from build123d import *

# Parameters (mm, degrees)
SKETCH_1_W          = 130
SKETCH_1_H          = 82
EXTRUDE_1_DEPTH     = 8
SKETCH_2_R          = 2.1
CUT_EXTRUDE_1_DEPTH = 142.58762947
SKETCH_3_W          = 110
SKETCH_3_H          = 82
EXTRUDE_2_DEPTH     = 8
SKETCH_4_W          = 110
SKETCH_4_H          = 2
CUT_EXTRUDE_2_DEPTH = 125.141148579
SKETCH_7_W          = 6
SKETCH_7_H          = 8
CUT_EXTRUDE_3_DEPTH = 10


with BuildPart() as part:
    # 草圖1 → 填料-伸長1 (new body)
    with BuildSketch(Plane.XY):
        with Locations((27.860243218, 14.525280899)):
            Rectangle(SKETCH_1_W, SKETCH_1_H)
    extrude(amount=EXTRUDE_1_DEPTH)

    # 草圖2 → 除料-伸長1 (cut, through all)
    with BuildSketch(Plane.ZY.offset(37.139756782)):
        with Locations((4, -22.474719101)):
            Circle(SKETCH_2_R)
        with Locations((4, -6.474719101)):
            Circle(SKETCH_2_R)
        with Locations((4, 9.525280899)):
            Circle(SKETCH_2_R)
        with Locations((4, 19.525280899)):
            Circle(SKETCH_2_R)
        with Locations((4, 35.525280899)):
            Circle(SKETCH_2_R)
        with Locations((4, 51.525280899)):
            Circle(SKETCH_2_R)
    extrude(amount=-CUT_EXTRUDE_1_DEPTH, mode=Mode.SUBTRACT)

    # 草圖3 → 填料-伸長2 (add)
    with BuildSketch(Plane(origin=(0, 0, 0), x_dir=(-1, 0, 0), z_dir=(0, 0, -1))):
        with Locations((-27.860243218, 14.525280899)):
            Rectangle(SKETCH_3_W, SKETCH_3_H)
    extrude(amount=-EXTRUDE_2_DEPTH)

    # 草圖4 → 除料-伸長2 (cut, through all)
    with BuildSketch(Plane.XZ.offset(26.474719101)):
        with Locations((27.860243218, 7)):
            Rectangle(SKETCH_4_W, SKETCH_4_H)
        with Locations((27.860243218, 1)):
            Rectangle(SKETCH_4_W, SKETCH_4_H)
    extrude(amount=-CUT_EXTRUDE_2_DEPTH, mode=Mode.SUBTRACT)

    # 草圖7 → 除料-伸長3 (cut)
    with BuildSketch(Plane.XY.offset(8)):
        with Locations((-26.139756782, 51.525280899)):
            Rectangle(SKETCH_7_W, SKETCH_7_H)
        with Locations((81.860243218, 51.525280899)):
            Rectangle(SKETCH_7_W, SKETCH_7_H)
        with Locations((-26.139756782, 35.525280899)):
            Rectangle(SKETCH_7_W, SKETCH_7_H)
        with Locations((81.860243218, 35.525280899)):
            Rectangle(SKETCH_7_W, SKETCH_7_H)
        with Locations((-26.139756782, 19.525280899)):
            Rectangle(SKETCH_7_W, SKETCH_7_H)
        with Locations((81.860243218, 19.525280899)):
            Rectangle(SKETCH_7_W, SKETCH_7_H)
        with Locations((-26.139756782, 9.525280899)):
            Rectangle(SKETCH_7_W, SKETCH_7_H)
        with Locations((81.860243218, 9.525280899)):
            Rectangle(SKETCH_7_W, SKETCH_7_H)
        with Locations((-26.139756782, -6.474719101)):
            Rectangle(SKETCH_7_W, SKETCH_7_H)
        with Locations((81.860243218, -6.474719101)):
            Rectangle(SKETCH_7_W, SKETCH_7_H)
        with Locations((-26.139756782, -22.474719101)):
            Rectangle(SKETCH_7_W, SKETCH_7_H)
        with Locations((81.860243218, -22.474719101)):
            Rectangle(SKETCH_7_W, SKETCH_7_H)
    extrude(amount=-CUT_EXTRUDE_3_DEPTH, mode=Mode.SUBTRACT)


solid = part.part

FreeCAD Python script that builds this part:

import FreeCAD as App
import Part
import Sketcher
from FreeCAD import Vector

doc = App.newDocument("Part")
body = doc.addObject("PartDesign::Body", "Body")

sketch1 = body.newObject("Sketcher::SketchObject", "Sketch")
sketch1.AttachmentSupport = (doc.getObject("XY_Plane"), [""])
sketch1.MapMode = "FlatFace"
sketch1.addGeometry([
    Part.LineSegment(Vector(-37.139757, 55.525281, 0), Vector(-37.139757, -26.474719, 0)),
    Part.LineSegment(Vector(-37.139757, -26.474719, 0), Vector(92.860243, -26.474719, 0)),
    Part.LineSegment(Vector(92.860243, -26.474719, 0), Vector(92.860243, 55.525281, 0)),
    Part.LineSegment(Vector(92.860243, 55.525281, 0), Vector(-37.139757, 55.525281, 0)),
], False)
sketch1.addConstraint([
    Sketcher.Constraint("Coincident", 0, 2, 1, 1),
    Sketcher.Constraint("Coincident", 1, 2, 2, 1),
    Sketcher.Constraint("Coincident", 2, 2, 3, 1),
    Sketcher.Constraint("Coincident", 3, 2, 0, 1),
    Sketcher.Constraint("Vertical", 0),
    Sketcher.Constraint("Horizontal", 1),
    Sketcher.Constraint("Vertical", 2),
    Sketcher.Constraint("Horizontal", 3),
    Sketcher.Constraint("DistanceX", 1, 1, 1, 2, 130.0),
    Sketcher.Constraint("DistanceY", 0, 2, 0, 1, 82.0),
    Sketcher.Constraint("DistanceY", 0, 2, -1, 1, 26.474719),
    Sketcher.Constraint("DistanceX", 0, 2, -1, 1, 37.139757),
])
pad1 = body.newObject("PartDesign::Pad", "Pad")
pad1.Profile = sketch1
pad1.Length = 8

sketch2 = body.newObject("Sketcher::SketchObject", "Sketch001")
sketch2.AttachmentSupport = (doc.getObject("YZ_Plane"), [""])
sketch2.MapMode = "FlatFace"
sketch2.AttachmentOffset = App.Placement(Vector(0, 0, -37.139757), App.Rotation())
sketch2.addGeometry([
    Part.Circle(Vector(-22.474719, 4, 0), Vector(0, 0, 1), 2.1),
    Part.Circle(Vector(-6.474719, 4, 0), Vector(0, 0, 1), 2.1),
    Part.Circle(Vector(9.525281, 4, 0), Vector(0, 0, 1), 2.1),
    Part.Circle(Vector(19.525281, 4, 0), Vector(0, 0, 1), 2.1),
    Part.Circle(Vector(35.525281, 4, 0), Vector(0, 0, 1), 2.1),
    Part.Circle(Vector(51.525281, 4, 0), Vector(0, 0, 1), 2.1),
], False)
sketch2.addConstraint([
    Sketcher.Constraint("Equal", 0, 1),
    Sketcher.Constraint("Equal", 1, 2),
    Sketcher.Constraint("Equal", 2, 3),
    Sketcher.Constraint("Equal", 3, 4),
    Sketcher.Constraint("Equal", 4, 5),
    Sketcher.Constraint("Horizontal", 0, 3, 1, 3),
    Sketcher.Constraint("Horizontal", 1, 3, 2, 3),
    Sketcher.Constraint("Horizontal", 2, 3, 3, 3),
    Sketcher.Constraint("Horizontal", 3, 3, 4, 3),
    Sketcher.Constraint("Horizontal", 4, 3, 5, 3),
    Sketcher.Constraint("Diameter", 0, 4.2),
    Sketcher.Constraint("DistanceY", -1, 1, 0, 3, 4.0),
    Sketcher.Constraint("DistanceX", 0, 3, 1, 3, 16.0),
    Sketcher.Constraint("DistanceX", 1, 3, 2, 3, 16.0),
    Sketcher.Constraint("DistanceX", 2, 3, 3, 3, 10.0),
    Sketcher.Constraint("DistanceX", 3, 3, 4, 3, 16.0),
    Sketcher.Constraint("DistanceX", 4, 3, 5, 3, 16.0),
    Sketcher.Constraint("DistanceX", 0, 3, -1, 1, 22.474719),
])
pocket1 = body.newObject("PartDesign::Pocket", "Pocket")
pocket1.Profile = sketch2
pocket1.Type = "ThroughAll"
pocket1.Reversed = True

sketch3 = body.newObject("Sketcher::SketchObject", "Sketch002")
sketch3.AttachmentSupport = (doc.getObject("XY_Plane"), [""])
sketch3.MapMode = "FlatFace"
sketch3.addGeometry([
    Part.LineSegment(Vector(82.860243, 55.525281, 0), Vector(82.860243, -26.474719, 0)),
    Part.LineSegment(Vector(82.860243, -26.474719, 0), Vector(-27.139757, -26.474719, 0)),
    Part.LineSegment(Vector(-27.139757, -26.474719, 0), Vector(-27.139757, 55.525281, 0)),
    Part.LineSegment(Vector(-27.139757, 55.525281, 0), Vector(82.860243, 55.525281, 0)),
], False)
sketch3.addConstraint([
    Sketcher.Constraint("Coincident", 0, 2, 1, 1),
    Sketcher.Constraint("Coincident", 1, 2, 2, 1),
    Sketcher.Constraint("Coincident", 2, 2, 3, 1),
    Sketcher.Constraint("Coincident", 3, 2, 0, 1),
    Sketcher.Constraint("Vertical", 0),
    Sketcher.Constraint("Horizontal", 1),
    Sketcher.Constraint("Vertical", 2),
    Sketcher.Constraint("Horizontal", 3),
    Sketcher.Constraint("DistanceX", 1, 2, 1, 1, 110.0),
    Sketcher.Constraint("DistanceY", 0, 2, 0, 1, 82.0),
    Sketcher.Constraint("DistanceY", 0, 2, -1, 1, 26.474719),
    Sketcher.Constraint("DistanceX", -1, 1, 0, 2, 82.860243),
])
pad2 = body.newObject("PartDesign::Pad", "Pad001")
pad2.Profile = sketch3
pad2.Length = 8

sketch4 = body.newObject("Sketcher::SketchObject", "Sketch003")
sketch4.AttachmentSupport = (doc.getObject("XZ_Plane"), [""])
sketch4.MapMode = "FlatFace"
sketch4.AttachmentOffset = App.Placement(Vector(0, 0, 26.474719), App.Rotation())
sketch4.addGeometry([
    Part.LineSegment(Vector(-27.139757, 8, 0), Vector(-27.139757, 6, 0)),
    Part.LineSegment(Vector(-27.139757, 6, 0), Vector(82.860243, 6, 0)),
    Part.LineSegment(Vector(82.860243, 6, 0), Vector(82.860243, 8, 0)),
    Part.LineSegment(Vector(82.860243, 8, 0), Vector(-27.139757, 8, 0)),
    Part.LineSegment(Vector(-27.139757, 2, 0), Vector(-27.139757, 0, 0)),
    Part.LineSegment(Vector(-27.139757, 0, 0), Vector(82.860243, 0, 0)),
    Part.LineSegment(Vector(82.860243, 0, 0), Vector(82.860243, 2, 0)),
    Part.LineSegment(Vector(82.860243, 2, 0), Vector(-27.139757, 2, 0)),
], False)
sketch4.addConstraint([
    Sketcher.Constraint("Coincident", 0, 2, 1, 1),
    Sketcher.Constraint("Coincident", 1, 2, 2, 1),
    Sketcher.Constraint("Coincident", 2, 2, 3, 1),
    Sketcher.Constraint("Coincident", 3, 2, 0, 1),
    Sketcher.Constraint("Coincident", 4, 2, 5, 1),
    Sketcher.Constraint("Coincident", 5, 2, 6, 1),
    Sketcher.Constraint("Coincident", 6, 2, 7, 1),
    Sketcher.Constraint("Coincident", 7, 2, 4, 1),
    Sketcher.Constraint("Vertical", 0),
    Sketcher.Constraint("Horizontal", 1),
    Sketcher.Constraint("Vertical", 2),
    Sketcher.Constraint("Horizontal", 3),
    Sketcher.Constraint("Vertical", 4),
    Sketcher.Constraint("Horizontal", 5),
    Sketcher.Constraint("Vertical", 6),
    Sketcher.Constraint("Horizontal", 7),
    Sketcher.Constraint("PointOnObject", 4, 2, -1),
    Sketcher.Constraint("Vertical", 3, 2, 4, 2),
    Sketcher.Constraint("Vertical", 2, 2, 5, 2),
    Sketcher.Constraint("Equal", 2, 4),
    Sketcher.Constraint("DistanceX", 1, 1, 1, 2, 110.0),
    Sketcher.Constraint("DistanceY", 0, 2, 0, 1, 2.0),
    Sketcher.Constraint("DistanceY", -1, 1, 0, 2, 6.0),
    Sketcher.Constraint("DistanceX", 0, 2, -1, 1, 27.139757),
])
pocket2 = body.newObject("PartDesign::Pocket", "Pocket001")
pocket2.Profile = sketch4
pocket2.Type = "ThroughAll"

sketch5 = body.newObject("Sketcher::SketchObject", "Sketch004")
sketch5.AttachmentSupport = (doc.getObject("XY_Plane"), [""])
sketch5.MapMode = "FlatFace"
sketch5.AttachmentOffset = App.Placement(Vector(0, 0, 8), App.Rotation())
sketch5.addGeometry([
    Part.LineSegment(Vector(-29.139757, 55.525281, 0), Vector(-29.139757, 47.525281, 0)),
    Part.LineSegment(Vector(-29.139757, 47.525281, 0), Vector(-23.139757, 47.525281, 0)),
    Part.LineSegment(Vector(-23.139757, 47.525281, 0), Vector(-23.139757, 55.525281, 0)),
    Part.LineSegment(Vector(-23.139757, 55.525281, 0), Vector(-29.139757, 55.525281, 0)),
    Part.LineSegment(Vector(78.860243, 55.525281, 0), Vector(78.860243, 47.525281, 0)),
    Part.LineSegment(Vector(78.860243, 47.525281, 0), Vector(84.860243, 47.525281, 0)),
    Part.LineSegment(Vector(84.860243, 47.525281, 0), Vector(84.860243, 55.525281, 0)),
    Part.LineSegment(Vector(84.860243, 55.525281, 0), Vector(78.860243, 55.525281, 0)),
    Part.LineSegment(Vector(-29.139757, 39.525281, 0), Vector(-29.139757, 31.525281, 0)),
    Part.LineSegment(Vector(-29.139757, 31.525281, 0), Vector(-23.139757, 31.525281, 0)),
    Part.LineSegment(Vector(-23.139757, 31.525281, 0), Vector(-23.139757, 39.525281, 0)),
    Part.LineSegment(Vector(-23.139757, 39.525281, 0), Vector(-29.139757, 39.525281, 0)),
    Part.LineSegment(Vector(78.860243, 39.525281, 0), Vector(78.860243, 31.525281, 0)),
    Part.LineSegment(Vector(78.860243, 31.525281, 0), Vector(84.860243, 31.525281, 0)),
    Part.LineSegment(Vector(84.860243, 31.525281, 0), Vector(84.860243, 39.525281, 0)),
    Part.LineSegment(Vector(84.860243, 39.525281, 0), Vector(78.860243, 39.525281, 0)),
    Part.LineSegment(Vector(-29.139757, 23.525281, 0), Vector(-29.139757, 15.525281, 0)),
    Part.LineSegment(Vector(-29.139757, 15.525281, 0), Vector(-23.139757, 15.525281, 0)),
    Part.LineSegment(Vector(-23.139757, 15.525281, 0), Vector(-23.139757, 23.525281, 0)),
    Part.LineSegment(Vector(-23.139757, 23.525281, 0), Vector(-29.139757, 23.525281, 0)),
    Part.LineSegment(Vector(78.860243, 23.525281, 0), Vector(78.860243, 15.525281, 0)),
    Part.LineSegment(Vector(78.860243, 15.525281, 0), Vector(84.860243, 15.525281, 0)),
    Part.LineSegment(Vector(84.860243, 15.525281, 0), Vector(84.860243, 23.525281, 0)),
    Part.LineSegment(Vector(84.860243, 23.525281, 0), Vector(78.860243, 23.525281, 0)),
    Part.LineSegment(Vector(-29.139757, 13.525281, 0), Vector(-29.139757, 5.525281, 0)),
    Part.LineSegment(Vector(-29.139757, 5.525281, 0), Vector(-23.139757, 5.525281, 0)),
    Part.LineSegment(Vector(-23.139757, 5.525281, 0), Vector(-23.139757, 13.525281, 0)),
    Part.LineSegment(Vector(-23.139757, 13.525281, 0), Vector(-29.139757, 13.525281, 0)),
    Part.LineSegment(Vector(78.860243, 13.525281, 0), Vector(78.860243, 5.525281, 0)),
    Part.LineSegment(Vector(78.860243, 5.525281, 0), Vector(84.860243, 5.525281, 0)),
    Part.LineSegment(Vector(84.860243, 5.525281, 0), Vector(84.860243, 13.525281, 0)),
    Part.LineSegment(Vector(84.860243, 13.525281, 0), Vector(78.860243, 13.525281, 0)),
    Part.LineSegment(Vector(-29.139757, -2.474719, 0), Vector(-29.139757, -10.474719, 0)),
    Part.LineSegment(Vector(-29.139757, -10.474719, 0), Vector(-23.139757, -10.474719, 0)),
    Part.LineSegment(Vector(-23.139757, -10.474719, 0), Vector(-23.139757, -2.474719, 0)),
    Part.LineSegment(Vector(-23.139757, -2.474719, 0), Vector(-29.139757, -2.474719, 0)),
    Part.LineSegment(Vector(78.860243, -2.474719, 0), Vector(78.860243, -10.474719, 0)),
    Part.LineSegment(Vector(78.860243, -10.474719, 0), Vector(84.860243, -10.474719, 0)),
    Part.LineSegment(Vector(84.860243, -10.474719, 0), Vector(84.860243, -2.474719, 0)),
    Part.LineSegment(Vector(84.860243, -2.474719, 0), Vector(78.860243, -2.474719, 0)),
    Part.LineSegment(Vector(-29.139757, -18.474719, 0), Vector(-29.139757, -26.474719, 0)),
    Part.LineSegment(Vector(-29.139757, -26.474719, 0), Vector(-23.139757, -26.474719, 0)),
    Part.LineSegment(Vector(-23.139757, -26.474719, 0), Vector(-23.139757, -18.474719, 0)),
    Part.LineSegment(Vector(-23.139757, -18.474719, 0), Vector(-29.139757, -18.474719, 0)),
    Part.LineSegment(Vector(78.860243, -18.474719, 0), Vector(78.860243, -26.474719, 0)),
    Part.LineSegment(Vector(78.860243, -26.474719, 0), Vector(84.860243, -26.474719, 0)),
    Part.LineSegment(Vector(84.860243, -26.474719, 0), Vector(84.860243, -18.474719, 0)),
    Part.LineSegment(Vector(84.860243, -18.474719, 0), Vector(78.860243, -18.474719, 0)),
], False)
sketch5.addConstraint([
    Sketcher.Constraint("Coincident", 0, 2, 1, 1),
    Sketcher.Constraint("Coincident", 1, 2, 2, 1),
    Sketcher.Constraint("Coincident", 2, 2, 3, 1),
    Sketcher.Constraint("Coincident", 3, 2, 0, 1),
    Sketcher.Constraint("Coincident", 4, 2, 5, 1),
    Sketcher.Constraint("Coincident", 5, 2, 6, 1),
    Sketcher.Constraint("Coincident", 6, 2, 7, 1),
    Sketcher.Constraint("Coincident", 7, 2, 4, 1),
    Sketcher.Constraint("Coincident", 8, 2, 9, 1),
    Sketcher.Constraint("Coincident", 9, 2, 10, 1),
    Sketcher.Constraint("Coincident", 10, 2, 11, 1),
    Sketcher.Constraint("Coincident", 11, 2, 8, 1),
    Sketcher.Constraint("Coincident", 12, 2, 13, 1),
    Sketcher.Constraint("Coincident", 13, 2, 14, 1),
    Sketcher.Constraint("Coincident", 14, 2, 15, 1),
    Sketcher.Constraint("Coincident", 15, 2, 12, 1),
    Sketcher.Constraint("Coincident", 16, 2, 17, 1),
    Sketcher.Constraint("Coincident", 17, 2, 18, 1),
    Sketcher.Constraint("Coincident", 18, 2, 19, 1),
    Sketcher.Constraint("Coincident", 19, 2, 16, 1),
    Sketcher.Constraint("Coincident", 20, 2, 21, 1),
    Sketcher.Constraint("Coincident", 21, 2, 22, 1),
    Sketcher.Constraint("Coincident", 22, 2, 23, 1),
    Sketcher.Constraint("Coincident", 23, 2, 20, 1),
    Sketcher.Constraint("Coincident", 24, 2, 25, 1),
    Sketcher.Constraint("Coincident", 25, 2, 26, 1),
    Sketcher.Constraint("Coincident", 26, 2, 27, 1),
    Sketcher.Constraint("Coincident", 27, 2, 24, 1),
    Sketcher.Constraint("Coincident", 28, 2, 29, 1),
    Sketcher.Constraint("Coincident", 29, 2, 30, 1),
    Sketcher.Constraint("Coincident", 30, 2, 31, 1),
    Sketcher.Constraint("Coincident", 31, 2, 28, 1),
    Sketcher.Constraint("Coincident", 32, 2, 33, 1),
    Sketcher.Constraint("Coincident", 33, 2, 34, 1),
    Sketcher.Constraint("Coincident", 34, 2, 35, 1),
    Sketcher.Constraint("Coincident", 35, 2, 32, 1),
    Sketcher.Constraint("Coincident", 36, 2, 37, 1),
    Sketcher.Constraint("Coincident", 37, 2, 38, 1),
    Sketcher.Constraint("Coincident", 38, 2, 39, 1),
    Sketcher.Constraint("Coincident", 39, 2, 36, 1),
    Sketcher.Constraint("Coincident", 40, 2, 41, 1),
    Sketcher.Constraint("Coincident", 41, 2, 42, 1),
    Sketcher.Constraint("Coincident", 42, 2, 43, 1),
    Sketcher.Constraint("Coincident", 43, 2, 40, 1),
    Sketcher.Constraint("Coincident", 44, 2, 45, 1),
    Sketcher.Constraint("Coincident", 45, 2, 46, 1),
    Sketcher.Constraint("Coincident", 46, 2, 47, 1),
    Sketcher.Constraint("Coincident", 47, 2, 44, 1),
    Sketcher.Constraint("Vertical", 0),
    Sketcher.Constraint("Horizontal", 1),
    Sketcher.Constraint("Vertical", 2),
    Sketcher.Constraint("Horizontal", 3),
    Sketcher.Constraint("Vertical", 4),
    Sketcher.Constraint("Horizontal", 5),
    Sketcher.Constraint("Vertical", 6),
    Sketcher.Constraint("Horizontal", 7),
    Sketcher.Constraint("Vertical", 8),
    Sketcher.Constraint("Horizontal", 9),
    Sketcher.Constraint("Vertical", 10),
    Sketcher.Constraint("Horizontal", 11),
    Sketcher.Constraint("Vertical", 12),
    Sketcher.Constraint("Horizontal", 13),
    Sketcher.Constraint("Vertical", 14),
    Sketcher.Constraint("Horizontal", 15),
    Sketcher.Constraint("Vertical", 16),
    Sketcher.Constraint("Horizontal", 17),
    Sketcher.Constraint("Vertical", 18),
    Sketcher.Constraint("Horizontal", 19),
    Sketcher.Constraint("Vertical", 20),
    Sketcher.Constraint("Horizontal", 21),
    Sketcher.Constraint("Vertical", 22),
    Sketcher.Constraint("Horizontal", 23),
    Sketcher.Constraint("Vertical", 24),
    Sketcher.Constraint("Horizontal", 25),
    Sketcher.Constraint("Vertical", 26),
    Sketcher.Constraint("Horizontal", 27),
    Sketcher.Constraint("Vertical", 28),
    Sketcher.Constraint("Horizontal", 29),
    Sketcher.Constraint("Vertical", 30),
    Sketcher.Constraint("Horizontal", 31),
    Sketcher.Constraint("Vertical", 32),
    Sketcher.Constraint("Horizontal", 33),
    Sketcher.Constraint("Vertical", 34),
    Sketcher.Constraint("Horizontal", 35),
    Sketcher.Constraint("Vertical", 36),
    Sketcher.Constraint("Horizontal", 37),
    Sketcher.Constraint("Vertical", 38),
    Sketcher.Constraint("Horizontal", 39),
    Sketcher.Constraint("Vertical", 40),
    Sketcher.Constraint("Horizontal", 41),
    Sketcher.Constraint("Vertical", 42),
    Sketcher.Constraint("Horizontal", 43),
    Sketcher.Constraint("Vertical", 44),
    Sketcher.Constraint("Horizontal", 45),
    Sketcher.Constraint("Vertical", 46),
    Sketcher.Constraint("Horizontal", 47),
    Sketcher.Constraint("Horizontal", 1, 2, 4, 2),
    Sketcher.Constraint("Horizontal", 3, 2, 6, 2),
    Sketcher.Constraint("Horizontal", 9, 2, 12, 2),
    Sketcher.Constraint("Horizontal", 11, 2, 14, 2),
    Sketcher.Constraint("Horizontal", 17, 2, 20, 2),
    Sketcher.Constraint("Horizontal", 19, 2, 22, 2),
    Sketcher.Constraint("Horizontal", 25, 2, 28, 2),
    Sketcher.Constraint("Horizontal", 27, 2, 30, 2),
    Sketcher.Constraint("Horizontal", 33, 2, 36, 2),
    Sketcher.Constraint("Horizontal", 35, 2, 38, 2),
    Sketcher.Constraint("Horizontal", 41, 2, 44, 2),
    Sketcher.Constraint("Horizontal", 43, 2, 46, 2),
    Sketcher.Constraint("Vertical", 3, 2, 8, 2),
    Sketcher.Constraint("Vertical", 2, 2, 9, 2),
    Sketcher.Constraint("Vertical", 7, 2, 12, 2),
    Sketcher.Constraint("Vertical", 6, 2, 13, 2),
    Sketcher.Constraint("Vertical", 11, 2, 16, 2),
    Sketcher.Constraint("Vertical", 10, 2, 17, 2),
    Sketcher.Constraint("Vertical", 15, 2, 20, 2),
    Sketcher.Constraint("Vertical", 14, 2, 21, 2),
    Sketcher.Constraint("Vertical", 19, 2, 24, 2),
    Sketcher.Constraint("Vertical", 18, 2, 25, 2),
    Sketcher.Constraint("Vertical", 23, 2, 28, 2),
    Sketcher.Constraint("Vertical", 22, 2, 29, 2),
    Sketcher.Constraint("Vertical", 27, 2, 32, 2),
    Sketcher.Constraint("Vertical", 26, 2, 33, 2),
    Sketcher.Constraint("Vertical", 31, 2, 36, 2),
    Sketcher.Constraint("Vertical", 30, 2, 37, 2),
    Sketcher.Constraint("Vertical", 35, 2, 40, 2),
    Sketcher.Constraint("Vertical", 34, 2, 41, 2),
    Sketcher.Constraint("Vertical", 39, 2, 44, 2),
    Sketcher.Constraint("Vertical", 38, 2, 45, 2),
    Sketcher.Constraint("Equal", 3, 5),
    Sketcher.Constraint("Equal", 6, 8),
    Sketcher.Constraint("Equal", 14, 16),
    Sketcher.Constraint("Equal", 22, 24),
    Sketcher.Constraint("Equal", 30, 32),
    Sketcher.Constraint("Equal", 38, 40),
    Sketcher.Constraint("DistanceX", 1, 1, 1, 2, 6.0),
    Sketcher.Constraint("DistanceY", 0, 2, 0, 1, 8.0),
    Sketcher.Constraint("DistanceX", 1, 2, 4, 2, 102.0),
    Sketcher.Constraint("DistanceY", 8, 2, 0, 2, 16.0),
    Sketcher.Constraint("DistanceY", 16, 2, 8, 2, 16.0),
    Sketcher.Constraint("DistanceY", 24, 2, 16, 2, 10.0),
    Sketcher.Constraint("DistanceY", 32, 2, 24, 2, 16.0),
    Sketcher.Constraint("DistanceY", 40, 2, 32, 2, 16.0),
    Sketcher.Constraint("DistanceY", -1, 1, 0, 2, 47.525281),
    Sketcher.Constraint("DistanceX", 0, 2, -1, 1, 29.139757),
])
pocket3 = body.newObject("PartDesign::Pocket", "Pocket002")
pocket3.Profile = sketch5
pocket3.Length = 10

doc.recompute()
